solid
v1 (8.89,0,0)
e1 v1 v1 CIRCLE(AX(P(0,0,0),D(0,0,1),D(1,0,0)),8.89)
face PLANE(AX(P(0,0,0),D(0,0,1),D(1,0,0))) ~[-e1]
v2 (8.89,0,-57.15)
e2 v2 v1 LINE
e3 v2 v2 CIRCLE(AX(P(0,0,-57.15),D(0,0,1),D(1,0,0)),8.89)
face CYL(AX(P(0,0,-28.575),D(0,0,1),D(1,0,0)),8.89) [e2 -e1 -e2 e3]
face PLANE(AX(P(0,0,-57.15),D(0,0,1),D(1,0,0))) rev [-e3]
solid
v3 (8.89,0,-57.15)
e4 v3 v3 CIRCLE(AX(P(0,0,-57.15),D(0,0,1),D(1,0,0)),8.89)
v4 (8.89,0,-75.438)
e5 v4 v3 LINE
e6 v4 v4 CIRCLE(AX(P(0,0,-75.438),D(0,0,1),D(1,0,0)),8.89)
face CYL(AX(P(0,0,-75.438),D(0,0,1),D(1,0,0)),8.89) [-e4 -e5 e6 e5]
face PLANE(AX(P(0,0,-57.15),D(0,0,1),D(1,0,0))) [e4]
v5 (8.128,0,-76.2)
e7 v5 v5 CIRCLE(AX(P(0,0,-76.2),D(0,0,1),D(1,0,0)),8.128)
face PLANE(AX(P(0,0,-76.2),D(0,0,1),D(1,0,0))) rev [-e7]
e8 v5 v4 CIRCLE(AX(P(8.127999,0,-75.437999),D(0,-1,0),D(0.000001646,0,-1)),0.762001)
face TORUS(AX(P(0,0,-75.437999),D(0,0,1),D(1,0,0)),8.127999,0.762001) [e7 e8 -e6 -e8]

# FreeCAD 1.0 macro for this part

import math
import FreeCAD as App
import Part
import Sketcher

V = App.Vector
Q = App.Units.Quantity

doc = App.newDocument("Part")
body = doc.addObject("PartDesign::Body", "Body")

sketch1 = doc.addObject("Sketcher::SketchObject", "Sketch")
body.addObject(sketch1)
sketch1.AttachmentSupport = (doc.XZ_Plane, [""])
sketch1.MapMode = "FlatFace"
sketch1.addGeometry([
    Part.LineSegment(V(8.9, -57.1, 0), V(0, -57.1, 0)),
    Part.LineSegment(V(0, -57.1, 0), V(0, -76.2, 0)),
    Part.LineSegment(V(0, -76.2, 0), V(8.1, -76.2, 0)),
    Part.ArcOfCircle(Part.Circle(V(8.1, -75.4, 0), V(0, 0, 1), 0.8), math.radians(-90), math.radians(0)),
    Part.LineSegment(V(8.9, -75.4, 0), V(8.9, -57.1, 0)),
], False)
sketch1.addConstraint([
    Sketcher.Constraint("Coincident", 0, 2, 1, 1),
    Sketcher.Constraint("Coincident", 1, 2, 2, 1),
    Sketcher.Constraint("Tangent", 2, 2, 3, 1),
    Sketcher.Constraint("Tangent", 3, 2, 4, 1),
    Sketcher.Constraint("Coincident", 4, 2, 0, 1),
    Sketcher.Constraint("Horizontal", 0),
    Sketcher.Constraint("Vertical", 1),
    Sketcher.Constraint("Horizontal", 2),
    Sketcher.Constraint("Vertical", 4),
    Sketcher.Constraint("PointOnObject", 0, 2, -2),
    Sketcher.Constraint("Radius", 3, Q("0.03 in")),
    Sketcher.Constraint("DistanceY", 1, 2, -1, 1, Q("3 in")),
    Sketcher.Constraint("DistanceX", 0, 2, 0, 1, Q("0.35 in")),
    Sketcher.Constraint("DistanceY", 1, 2, 1, 1, Q("0.75 in")),
])
revolution = doc.addObject("PartDesign::Revolution", "Revolution")
body.addObject(revolution)
revolution.Profile = sketch1
revolution.ReferenceAxis = (sketch1, ["V_Axis"])
revolution.Angle = 360
body2 = doc.addObject("PartDesign::Body", "Body001")

sketch2 = doc.addObject("Sketcher::SketchObject", "Sketch001")
body2.addObject(sketch2)
sketch2.AttachmentSupport = (doc.getObject("XZ_Plane001"), [""])
sketch2.MapMode = "FlatFace"
sketch2.addGeometry([
    Part.LineSegment(V(0, 0, 0), V(0, -57, 0)),
    Part.LineSegment(V(0, -57, 0), V(9, -57, 0)),
    Part.LineSegment(V(9, -57, 0), V(9, 0, 0)),
    Part.LineSegment(V(9, 0, 0), V(0, 0, 0)),
], False)
sketch2.addConstraint([
    Sketcher.Constraint("Coincident", 0, 2, 1, 1),
    Sketcher.Constraint("Coincident", 1, 2, 2, 1),
    Sketcher.Constraint("Coincident", 2, 2, 3, 1),
    Sketcher.Constraint("Coincident", 3, 2, 0, 1),
    Sketcher.Constraint("Vertical", 0),
    Sketcher.Constraint("Horizontal", 1),
    Sketcher.Constraint("Vertical", 2),
    Sketcher.Constraint("Horizontal", 3),
    Sketcher.Constraint("Coincident", 3, 2, -1, 1),
    Sketcher.Constraint("DistanceX", 1, 1, 1, 2, Q("0.35 in")),
    Sketcher.Constraint("DistanceY", 0, 2, 0, 1, Q("2.25 in")),
])
revolution2 = doc.addObject("PartDesign::Revolution", "Revolution001")
body2.addObject(revolution2)
revolution2.Profile = sketch2
revolution2.ReferenceAxis = (sketch2, ["V_Axis"])
revolution2.Angle = 360

doc.recompute()
